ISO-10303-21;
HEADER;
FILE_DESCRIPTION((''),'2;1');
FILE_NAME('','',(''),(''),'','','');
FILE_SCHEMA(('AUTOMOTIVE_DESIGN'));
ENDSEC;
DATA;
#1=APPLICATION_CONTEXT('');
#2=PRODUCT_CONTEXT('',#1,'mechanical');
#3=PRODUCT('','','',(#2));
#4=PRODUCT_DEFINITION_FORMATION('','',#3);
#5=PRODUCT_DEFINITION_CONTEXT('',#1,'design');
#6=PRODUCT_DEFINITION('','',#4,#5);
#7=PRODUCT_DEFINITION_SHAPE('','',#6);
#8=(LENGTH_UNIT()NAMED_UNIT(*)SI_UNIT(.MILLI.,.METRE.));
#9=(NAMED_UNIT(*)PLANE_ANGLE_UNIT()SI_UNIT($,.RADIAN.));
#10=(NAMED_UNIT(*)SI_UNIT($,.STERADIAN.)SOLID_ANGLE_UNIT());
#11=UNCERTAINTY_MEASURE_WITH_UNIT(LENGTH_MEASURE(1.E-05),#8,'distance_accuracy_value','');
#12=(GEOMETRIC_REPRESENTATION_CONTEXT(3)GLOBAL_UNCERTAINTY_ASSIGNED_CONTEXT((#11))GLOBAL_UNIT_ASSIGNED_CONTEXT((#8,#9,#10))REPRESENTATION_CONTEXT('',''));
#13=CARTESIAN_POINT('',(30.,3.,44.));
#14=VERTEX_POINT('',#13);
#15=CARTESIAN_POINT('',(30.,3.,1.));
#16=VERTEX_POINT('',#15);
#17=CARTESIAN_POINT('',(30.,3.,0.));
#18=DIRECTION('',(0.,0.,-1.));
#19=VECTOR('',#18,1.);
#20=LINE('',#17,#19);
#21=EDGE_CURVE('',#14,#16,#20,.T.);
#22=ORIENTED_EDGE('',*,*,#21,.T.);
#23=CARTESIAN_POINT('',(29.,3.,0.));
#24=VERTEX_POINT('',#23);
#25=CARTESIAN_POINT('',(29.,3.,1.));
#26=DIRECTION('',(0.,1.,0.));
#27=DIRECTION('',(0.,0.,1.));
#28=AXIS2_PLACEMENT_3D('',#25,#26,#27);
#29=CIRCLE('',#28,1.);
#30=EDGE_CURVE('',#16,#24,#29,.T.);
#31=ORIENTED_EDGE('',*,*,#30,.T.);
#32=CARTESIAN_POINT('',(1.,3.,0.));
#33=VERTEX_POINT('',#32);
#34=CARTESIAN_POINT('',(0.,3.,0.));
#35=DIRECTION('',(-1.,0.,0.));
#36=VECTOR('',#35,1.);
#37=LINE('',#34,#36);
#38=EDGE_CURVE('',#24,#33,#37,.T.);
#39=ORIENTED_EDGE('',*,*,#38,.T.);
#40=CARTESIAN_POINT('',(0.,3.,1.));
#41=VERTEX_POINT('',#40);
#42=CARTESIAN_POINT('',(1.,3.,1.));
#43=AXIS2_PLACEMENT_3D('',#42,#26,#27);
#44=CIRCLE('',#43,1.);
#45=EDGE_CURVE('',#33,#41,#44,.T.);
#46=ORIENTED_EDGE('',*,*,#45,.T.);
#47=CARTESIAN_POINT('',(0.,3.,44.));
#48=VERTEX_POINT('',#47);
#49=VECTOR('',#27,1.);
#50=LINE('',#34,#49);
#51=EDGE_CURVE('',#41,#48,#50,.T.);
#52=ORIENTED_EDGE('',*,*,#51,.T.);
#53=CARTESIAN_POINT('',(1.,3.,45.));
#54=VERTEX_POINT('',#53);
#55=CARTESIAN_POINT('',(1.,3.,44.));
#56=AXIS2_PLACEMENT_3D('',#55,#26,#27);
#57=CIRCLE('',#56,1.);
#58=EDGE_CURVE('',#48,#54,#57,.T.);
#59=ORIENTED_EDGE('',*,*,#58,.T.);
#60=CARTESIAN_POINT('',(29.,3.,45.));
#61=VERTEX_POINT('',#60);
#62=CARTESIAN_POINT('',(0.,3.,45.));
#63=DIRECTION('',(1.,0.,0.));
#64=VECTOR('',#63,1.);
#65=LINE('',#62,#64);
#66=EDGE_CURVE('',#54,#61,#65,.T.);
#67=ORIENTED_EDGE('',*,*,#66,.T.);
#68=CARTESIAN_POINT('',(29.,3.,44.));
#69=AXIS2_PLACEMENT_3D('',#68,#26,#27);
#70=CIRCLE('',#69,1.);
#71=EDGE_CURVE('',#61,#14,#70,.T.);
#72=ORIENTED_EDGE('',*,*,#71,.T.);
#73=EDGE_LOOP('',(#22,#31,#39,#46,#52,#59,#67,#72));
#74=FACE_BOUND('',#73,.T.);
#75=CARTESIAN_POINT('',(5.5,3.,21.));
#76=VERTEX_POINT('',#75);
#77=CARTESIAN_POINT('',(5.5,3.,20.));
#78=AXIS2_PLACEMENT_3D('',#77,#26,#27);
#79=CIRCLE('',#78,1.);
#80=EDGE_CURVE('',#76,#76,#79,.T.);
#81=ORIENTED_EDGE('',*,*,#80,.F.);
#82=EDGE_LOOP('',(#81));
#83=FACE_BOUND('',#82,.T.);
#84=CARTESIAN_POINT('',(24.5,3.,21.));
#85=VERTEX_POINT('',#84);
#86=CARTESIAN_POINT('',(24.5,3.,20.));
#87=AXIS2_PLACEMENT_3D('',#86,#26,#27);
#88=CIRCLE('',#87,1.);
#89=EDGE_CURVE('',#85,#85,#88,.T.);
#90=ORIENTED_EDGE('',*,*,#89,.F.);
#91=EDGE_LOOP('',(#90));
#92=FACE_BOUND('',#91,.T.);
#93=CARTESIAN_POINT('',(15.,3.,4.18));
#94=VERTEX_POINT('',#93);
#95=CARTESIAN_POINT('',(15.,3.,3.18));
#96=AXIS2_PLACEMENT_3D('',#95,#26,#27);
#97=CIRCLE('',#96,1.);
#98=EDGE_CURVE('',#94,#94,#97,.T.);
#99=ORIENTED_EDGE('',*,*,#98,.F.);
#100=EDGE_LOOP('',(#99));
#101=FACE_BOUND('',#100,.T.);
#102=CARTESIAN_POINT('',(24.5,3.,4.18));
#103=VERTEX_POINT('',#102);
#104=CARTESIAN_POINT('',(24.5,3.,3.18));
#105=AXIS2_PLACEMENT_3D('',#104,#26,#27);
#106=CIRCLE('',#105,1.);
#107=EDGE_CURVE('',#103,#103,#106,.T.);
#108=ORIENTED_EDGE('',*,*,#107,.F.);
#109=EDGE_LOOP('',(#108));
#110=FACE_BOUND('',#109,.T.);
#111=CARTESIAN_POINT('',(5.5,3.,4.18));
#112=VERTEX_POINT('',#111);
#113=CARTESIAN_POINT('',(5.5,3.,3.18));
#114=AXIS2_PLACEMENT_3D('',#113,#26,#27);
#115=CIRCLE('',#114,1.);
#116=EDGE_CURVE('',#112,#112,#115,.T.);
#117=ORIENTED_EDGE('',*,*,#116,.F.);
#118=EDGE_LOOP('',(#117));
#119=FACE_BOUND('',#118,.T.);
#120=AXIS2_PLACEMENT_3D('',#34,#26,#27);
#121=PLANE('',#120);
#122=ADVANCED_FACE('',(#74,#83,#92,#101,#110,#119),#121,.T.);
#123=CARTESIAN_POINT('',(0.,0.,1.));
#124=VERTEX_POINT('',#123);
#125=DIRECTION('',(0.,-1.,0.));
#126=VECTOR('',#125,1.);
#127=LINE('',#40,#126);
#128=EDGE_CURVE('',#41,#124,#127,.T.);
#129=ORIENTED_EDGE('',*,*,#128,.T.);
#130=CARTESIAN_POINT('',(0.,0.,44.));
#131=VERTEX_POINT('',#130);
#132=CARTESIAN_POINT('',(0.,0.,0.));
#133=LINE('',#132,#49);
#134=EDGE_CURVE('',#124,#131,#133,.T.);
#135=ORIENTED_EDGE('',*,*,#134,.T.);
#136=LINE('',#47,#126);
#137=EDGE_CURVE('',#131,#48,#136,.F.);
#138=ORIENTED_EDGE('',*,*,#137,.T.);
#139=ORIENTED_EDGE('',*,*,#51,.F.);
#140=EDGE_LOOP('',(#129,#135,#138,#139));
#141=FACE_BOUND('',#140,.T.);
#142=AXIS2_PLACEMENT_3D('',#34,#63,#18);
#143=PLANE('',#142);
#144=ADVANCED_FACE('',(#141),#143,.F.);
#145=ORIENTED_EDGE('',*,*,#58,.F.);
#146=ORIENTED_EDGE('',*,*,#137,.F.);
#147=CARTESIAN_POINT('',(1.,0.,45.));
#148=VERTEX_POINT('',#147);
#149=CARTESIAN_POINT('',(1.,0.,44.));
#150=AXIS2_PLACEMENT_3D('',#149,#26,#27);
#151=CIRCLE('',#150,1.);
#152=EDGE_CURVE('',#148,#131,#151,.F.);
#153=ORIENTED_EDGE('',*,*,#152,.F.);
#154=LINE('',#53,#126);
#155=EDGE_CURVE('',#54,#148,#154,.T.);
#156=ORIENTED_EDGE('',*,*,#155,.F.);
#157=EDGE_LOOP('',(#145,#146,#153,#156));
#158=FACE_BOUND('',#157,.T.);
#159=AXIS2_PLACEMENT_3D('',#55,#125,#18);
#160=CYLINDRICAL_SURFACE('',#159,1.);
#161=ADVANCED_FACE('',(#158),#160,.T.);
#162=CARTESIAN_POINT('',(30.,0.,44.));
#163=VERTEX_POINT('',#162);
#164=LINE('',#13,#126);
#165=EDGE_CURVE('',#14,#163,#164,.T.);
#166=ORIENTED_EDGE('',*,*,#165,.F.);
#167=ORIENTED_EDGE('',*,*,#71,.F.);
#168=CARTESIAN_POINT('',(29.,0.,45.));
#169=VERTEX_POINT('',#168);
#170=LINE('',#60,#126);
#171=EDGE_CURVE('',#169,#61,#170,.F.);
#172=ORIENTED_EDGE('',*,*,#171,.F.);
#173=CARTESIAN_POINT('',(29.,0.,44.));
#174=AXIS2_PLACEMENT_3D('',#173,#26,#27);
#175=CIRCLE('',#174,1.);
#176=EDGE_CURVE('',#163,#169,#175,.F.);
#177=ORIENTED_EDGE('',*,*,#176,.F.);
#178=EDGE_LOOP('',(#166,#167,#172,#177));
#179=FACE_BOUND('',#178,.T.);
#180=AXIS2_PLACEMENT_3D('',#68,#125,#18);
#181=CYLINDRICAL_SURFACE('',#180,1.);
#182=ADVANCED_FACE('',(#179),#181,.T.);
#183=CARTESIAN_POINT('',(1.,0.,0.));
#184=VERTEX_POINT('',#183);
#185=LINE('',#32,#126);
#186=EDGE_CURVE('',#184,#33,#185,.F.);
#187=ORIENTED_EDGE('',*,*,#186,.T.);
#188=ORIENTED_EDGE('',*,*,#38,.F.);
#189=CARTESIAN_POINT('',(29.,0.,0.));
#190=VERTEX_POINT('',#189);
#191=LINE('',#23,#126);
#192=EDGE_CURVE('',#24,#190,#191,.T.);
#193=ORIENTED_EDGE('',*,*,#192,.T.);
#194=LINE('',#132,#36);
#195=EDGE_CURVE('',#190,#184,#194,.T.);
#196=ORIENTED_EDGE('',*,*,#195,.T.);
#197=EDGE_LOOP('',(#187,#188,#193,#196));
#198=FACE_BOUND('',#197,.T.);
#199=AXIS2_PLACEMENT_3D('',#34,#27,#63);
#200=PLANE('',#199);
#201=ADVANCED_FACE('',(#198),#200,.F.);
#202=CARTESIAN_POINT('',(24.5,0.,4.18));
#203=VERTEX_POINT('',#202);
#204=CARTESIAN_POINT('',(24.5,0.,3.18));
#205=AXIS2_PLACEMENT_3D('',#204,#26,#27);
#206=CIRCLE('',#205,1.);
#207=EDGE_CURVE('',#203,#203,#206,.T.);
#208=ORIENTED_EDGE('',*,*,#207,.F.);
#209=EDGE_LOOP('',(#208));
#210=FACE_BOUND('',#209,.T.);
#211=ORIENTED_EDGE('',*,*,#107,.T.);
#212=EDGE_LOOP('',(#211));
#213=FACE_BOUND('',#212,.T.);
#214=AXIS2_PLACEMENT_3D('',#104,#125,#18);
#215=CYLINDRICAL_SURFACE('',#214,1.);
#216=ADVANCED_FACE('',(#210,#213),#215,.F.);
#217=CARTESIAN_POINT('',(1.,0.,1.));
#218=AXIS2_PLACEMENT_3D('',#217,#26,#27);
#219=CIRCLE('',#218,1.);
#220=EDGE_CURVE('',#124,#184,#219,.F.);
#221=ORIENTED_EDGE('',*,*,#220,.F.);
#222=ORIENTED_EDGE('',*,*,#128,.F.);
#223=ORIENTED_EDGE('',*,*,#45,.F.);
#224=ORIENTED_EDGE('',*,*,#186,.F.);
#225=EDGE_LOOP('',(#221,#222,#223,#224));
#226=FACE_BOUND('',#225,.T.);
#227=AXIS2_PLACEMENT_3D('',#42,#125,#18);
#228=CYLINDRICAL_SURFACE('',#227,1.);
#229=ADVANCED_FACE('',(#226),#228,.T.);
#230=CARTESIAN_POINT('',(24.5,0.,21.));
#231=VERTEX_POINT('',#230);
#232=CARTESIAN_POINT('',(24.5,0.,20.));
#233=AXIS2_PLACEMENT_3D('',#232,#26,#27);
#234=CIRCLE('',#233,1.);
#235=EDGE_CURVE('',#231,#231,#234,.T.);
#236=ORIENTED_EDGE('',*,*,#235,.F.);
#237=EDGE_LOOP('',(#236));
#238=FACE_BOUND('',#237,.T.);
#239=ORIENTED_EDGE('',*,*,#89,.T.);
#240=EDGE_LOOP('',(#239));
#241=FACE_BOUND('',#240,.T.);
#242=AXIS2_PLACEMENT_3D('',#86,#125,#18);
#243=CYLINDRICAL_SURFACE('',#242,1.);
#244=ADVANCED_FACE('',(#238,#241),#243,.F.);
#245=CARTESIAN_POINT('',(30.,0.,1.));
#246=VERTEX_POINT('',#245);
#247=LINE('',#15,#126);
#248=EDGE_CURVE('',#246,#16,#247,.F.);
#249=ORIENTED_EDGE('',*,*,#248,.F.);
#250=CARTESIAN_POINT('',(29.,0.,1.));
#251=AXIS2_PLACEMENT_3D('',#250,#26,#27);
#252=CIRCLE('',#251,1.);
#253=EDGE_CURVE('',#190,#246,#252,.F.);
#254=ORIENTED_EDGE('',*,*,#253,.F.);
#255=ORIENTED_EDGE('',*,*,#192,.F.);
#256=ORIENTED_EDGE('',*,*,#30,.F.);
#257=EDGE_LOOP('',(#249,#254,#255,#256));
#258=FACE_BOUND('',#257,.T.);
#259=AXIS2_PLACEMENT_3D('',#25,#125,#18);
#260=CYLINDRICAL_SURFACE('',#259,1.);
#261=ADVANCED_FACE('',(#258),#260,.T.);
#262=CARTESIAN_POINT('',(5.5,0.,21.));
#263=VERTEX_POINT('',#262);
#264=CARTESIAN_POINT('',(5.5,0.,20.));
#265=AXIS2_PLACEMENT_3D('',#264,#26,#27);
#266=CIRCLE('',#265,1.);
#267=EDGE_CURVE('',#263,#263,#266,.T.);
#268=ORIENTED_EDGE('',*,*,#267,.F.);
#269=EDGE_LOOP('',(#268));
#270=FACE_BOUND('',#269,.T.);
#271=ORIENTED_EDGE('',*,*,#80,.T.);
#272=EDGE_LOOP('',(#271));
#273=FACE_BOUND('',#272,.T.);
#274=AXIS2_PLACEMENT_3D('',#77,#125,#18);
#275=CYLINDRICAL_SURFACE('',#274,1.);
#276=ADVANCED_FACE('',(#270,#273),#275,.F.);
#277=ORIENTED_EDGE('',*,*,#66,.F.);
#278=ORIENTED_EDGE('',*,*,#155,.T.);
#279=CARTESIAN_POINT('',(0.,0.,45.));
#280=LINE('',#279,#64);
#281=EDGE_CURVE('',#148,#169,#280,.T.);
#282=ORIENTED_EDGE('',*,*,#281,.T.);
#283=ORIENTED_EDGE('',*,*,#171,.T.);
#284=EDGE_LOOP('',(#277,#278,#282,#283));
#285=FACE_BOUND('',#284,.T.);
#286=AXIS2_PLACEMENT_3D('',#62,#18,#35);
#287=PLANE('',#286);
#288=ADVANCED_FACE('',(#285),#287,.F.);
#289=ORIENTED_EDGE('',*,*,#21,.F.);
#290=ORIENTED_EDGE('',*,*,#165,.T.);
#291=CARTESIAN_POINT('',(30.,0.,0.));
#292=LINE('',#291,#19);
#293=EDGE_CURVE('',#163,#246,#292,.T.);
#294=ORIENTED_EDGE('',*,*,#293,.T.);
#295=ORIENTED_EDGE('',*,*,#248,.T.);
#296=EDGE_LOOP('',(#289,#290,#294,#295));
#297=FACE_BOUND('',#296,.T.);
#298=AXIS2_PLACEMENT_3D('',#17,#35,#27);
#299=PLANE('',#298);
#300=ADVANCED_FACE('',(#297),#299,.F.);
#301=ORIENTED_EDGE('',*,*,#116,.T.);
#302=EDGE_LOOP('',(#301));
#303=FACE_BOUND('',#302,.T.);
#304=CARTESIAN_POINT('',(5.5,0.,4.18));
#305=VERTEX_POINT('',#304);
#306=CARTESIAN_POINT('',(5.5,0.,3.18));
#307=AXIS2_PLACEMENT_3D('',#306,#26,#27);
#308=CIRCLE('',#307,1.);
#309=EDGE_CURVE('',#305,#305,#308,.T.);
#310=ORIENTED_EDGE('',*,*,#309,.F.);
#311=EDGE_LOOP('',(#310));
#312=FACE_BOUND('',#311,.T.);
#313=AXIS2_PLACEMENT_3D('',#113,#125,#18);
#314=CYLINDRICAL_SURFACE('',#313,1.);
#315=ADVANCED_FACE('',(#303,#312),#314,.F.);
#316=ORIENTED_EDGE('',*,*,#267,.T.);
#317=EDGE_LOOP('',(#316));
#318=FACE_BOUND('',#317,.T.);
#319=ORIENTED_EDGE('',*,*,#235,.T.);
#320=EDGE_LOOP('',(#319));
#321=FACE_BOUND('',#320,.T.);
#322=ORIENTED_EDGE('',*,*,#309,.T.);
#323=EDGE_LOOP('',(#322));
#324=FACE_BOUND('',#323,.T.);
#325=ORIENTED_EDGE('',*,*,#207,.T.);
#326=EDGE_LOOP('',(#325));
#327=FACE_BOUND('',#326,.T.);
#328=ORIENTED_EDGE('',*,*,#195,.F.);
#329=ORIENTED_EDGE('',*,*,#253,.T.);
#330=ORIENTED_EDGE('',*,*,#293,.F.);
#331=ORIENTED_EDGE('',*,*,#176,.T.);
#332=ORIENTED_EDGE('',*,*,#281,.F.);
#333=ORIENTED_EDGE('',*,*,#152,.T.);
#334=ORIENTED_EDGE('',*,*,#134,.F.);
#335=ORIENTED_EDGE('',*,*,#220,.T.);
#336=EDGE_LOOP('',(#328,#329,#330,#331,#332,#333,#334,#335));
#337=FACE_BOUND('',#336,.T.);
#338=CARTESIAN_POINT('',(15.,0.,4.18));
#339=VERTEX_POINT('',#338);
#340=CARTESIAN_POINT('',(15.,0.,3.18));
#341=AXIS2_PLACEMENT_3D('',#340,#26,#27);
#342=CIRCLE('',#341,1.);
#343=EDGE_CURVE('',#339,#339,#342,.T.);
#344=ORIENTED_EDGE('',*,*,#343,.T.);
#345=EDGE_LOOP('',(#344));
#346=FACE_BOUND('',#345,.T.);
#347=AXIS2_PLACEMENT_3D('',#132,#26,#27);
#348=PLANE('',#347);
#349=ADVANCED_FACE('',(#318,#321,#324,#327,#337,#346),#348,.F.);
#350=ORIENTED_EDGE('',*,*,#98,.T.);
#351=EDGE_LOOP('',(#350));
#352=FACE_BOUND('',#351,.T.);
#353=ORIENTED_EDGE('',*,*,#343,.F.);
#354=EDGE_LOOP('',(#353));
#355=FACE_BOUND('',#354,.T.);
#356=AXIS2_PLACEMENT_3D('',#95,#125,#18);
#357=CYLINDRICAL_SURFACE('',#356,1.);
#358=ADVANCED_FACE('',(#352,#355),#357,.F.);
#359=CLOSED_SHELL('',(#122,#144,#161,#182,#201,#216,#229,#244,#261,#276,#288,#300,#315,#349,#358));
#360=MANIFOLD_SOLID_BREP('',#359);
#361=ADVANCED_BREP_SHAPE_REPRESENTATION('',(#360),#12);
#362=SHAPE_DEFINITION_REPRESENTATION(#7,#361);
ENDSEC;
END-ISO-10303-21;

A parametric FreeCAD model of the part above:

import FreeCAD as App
import Part
import Sketcher
from FreeCAD import Vector
Q = App.Units.Quantity


def edges_at(feature, points):
    """Names of the edges that pass closest to the given points."""
    edges = feature.Shape.Edges
    near = lambda p: min(range(len(edges)), key=lambda i: edges[i].distToShape(Part.Vertex(*p))[0])
    return sorted({f"Edge{near(p) + 1}" for p in points})

doc = App.newDocument("Part")
body = doc.addObject("PartDesign::Body", "Body")

# Sketch on XZ plane
sketch1 = body.newObject("Sketcher::SketchObject", "Sketch")
sketch1.AttachmentSupport = (doc.getObject("XZ_Plane"), [""])
sketch1.MapMode = "FlatFace"
sketch1.addGeometry([
    Part.LineSegment(Vector(0, 0, 0), Vector(0, 45, 0)),  # 0
    Part.LineSegment(Vector(0, 45, 0), Vector(30, 45, 0)),  # 1
    Part.LineSegment(Vector(30, 45, 0), Vector(30, 0, 0)),  # 2
    Part.LineSegment(Vector(30, 0, 0), Vector(0, 0, 0)),  # 3
    Part.Circle(Vector(5.5, 20, 0), Vector(0, 0, 1), 1),  # 4
    Part.Circle(Vector(24.5, 20, 0), Vector(0, 0, 1), 1),  # 5
    Part.Circle(Vector(5.5, 3.2, 0), Vector(0, 0, 1), 1),  # 6
    Part.Circle(Vector(15, 3.2, 0), Vector(0, 0, 1), 1),  # 7
    Part.Circle(Vector(24.5, 3.2, 0), Vector(0, 0, 1), 1),  # 8
], False)
sketch1.addConstraint([
    Sketcher.Constraint("Coincident", 0, 2, 1, 1),
    Sketcher.Constraint("Coincident", 1, 2, 2, 1),
    Sketcher.Constraint("Coincident", 2, 2, 3, 1),
    Sketcher.Constraint("Coincident", 3, 2, 0, 1),
    Sketcher.Constraint("Vertical", 0),
    Sketcher.Constraint("Horizontal", 1),
    Sketcher.Constraint("Vertical", 2),
    Sketcher.Constraint("Horizontal", 3),
    Sketcher.Constraint("Coincident", 3, 2, -1, 1),
    Sketcher.Constraint("Equal", 4, 5),
    Sketcher.Constraint("Equal", 5, 6),
    Sketcher.Constraint("Equal", 6, 7),
    Sketcher.Constraint("Equal", 7, 8),
    Sketcher.Constraint("Horizontal", 4, 3, 5, 3),
    Sketcher.Constraint("Horizontal", 6, 3, 7, 3),
    Sketcher.Constraint("Horizontal", 7, 3, 8, 3),
    Sketcher.Constraint("Vertical", 4, 3, 6, 3),
    Sketcher.Constraint("Vertical", 5, 3, 8, 3),
    Sketcher.Constraint("Diameter", 4, Q("2 mm")),
    Sketcher.Constraint("DistanceX", 1, 1, 1, 2, Q("30 mm")),
    Sketcher.Constraint("DistanceY", 0, 1, 0, 2, Q("45 mm")),
    Sketcher.Constraint("DistanceY", -1, 1, 4, 3, Q("20 mm")),
    Sketcher.Constraint("DistanceX", -1, 1, 7, 3, Q("15 mm")),
    Sketcher.Constraint("DistanceX", 4, 3, 5, 3, Q("19 mm")),
    Sketcher.Constraint("DistanceX", -1, 1, 4, 3, Q("5.5 mm")),
    Sketcher.Constraint("DistanceY", -1, 1, 6, 3, Q("3.18 mm")),
])
pad1 = body.newObject("PartDesign::Pad", "Pad")
pad1.Profile = sketch1
pad1.Length = 3
pad1.Reversed = True
doc.recompute()

fillet = body.newObject("PartDesign::Fillet", "Fillet")
fillet.Base = (pad1, edges_at(pad1, [
    (0, 1.5, 0),
    (30, 1.5, 0),
    (30, 1.5, 45),
    (0, 1.5, 45),
]))
fillet.Radius = 1

doc.recompute()
